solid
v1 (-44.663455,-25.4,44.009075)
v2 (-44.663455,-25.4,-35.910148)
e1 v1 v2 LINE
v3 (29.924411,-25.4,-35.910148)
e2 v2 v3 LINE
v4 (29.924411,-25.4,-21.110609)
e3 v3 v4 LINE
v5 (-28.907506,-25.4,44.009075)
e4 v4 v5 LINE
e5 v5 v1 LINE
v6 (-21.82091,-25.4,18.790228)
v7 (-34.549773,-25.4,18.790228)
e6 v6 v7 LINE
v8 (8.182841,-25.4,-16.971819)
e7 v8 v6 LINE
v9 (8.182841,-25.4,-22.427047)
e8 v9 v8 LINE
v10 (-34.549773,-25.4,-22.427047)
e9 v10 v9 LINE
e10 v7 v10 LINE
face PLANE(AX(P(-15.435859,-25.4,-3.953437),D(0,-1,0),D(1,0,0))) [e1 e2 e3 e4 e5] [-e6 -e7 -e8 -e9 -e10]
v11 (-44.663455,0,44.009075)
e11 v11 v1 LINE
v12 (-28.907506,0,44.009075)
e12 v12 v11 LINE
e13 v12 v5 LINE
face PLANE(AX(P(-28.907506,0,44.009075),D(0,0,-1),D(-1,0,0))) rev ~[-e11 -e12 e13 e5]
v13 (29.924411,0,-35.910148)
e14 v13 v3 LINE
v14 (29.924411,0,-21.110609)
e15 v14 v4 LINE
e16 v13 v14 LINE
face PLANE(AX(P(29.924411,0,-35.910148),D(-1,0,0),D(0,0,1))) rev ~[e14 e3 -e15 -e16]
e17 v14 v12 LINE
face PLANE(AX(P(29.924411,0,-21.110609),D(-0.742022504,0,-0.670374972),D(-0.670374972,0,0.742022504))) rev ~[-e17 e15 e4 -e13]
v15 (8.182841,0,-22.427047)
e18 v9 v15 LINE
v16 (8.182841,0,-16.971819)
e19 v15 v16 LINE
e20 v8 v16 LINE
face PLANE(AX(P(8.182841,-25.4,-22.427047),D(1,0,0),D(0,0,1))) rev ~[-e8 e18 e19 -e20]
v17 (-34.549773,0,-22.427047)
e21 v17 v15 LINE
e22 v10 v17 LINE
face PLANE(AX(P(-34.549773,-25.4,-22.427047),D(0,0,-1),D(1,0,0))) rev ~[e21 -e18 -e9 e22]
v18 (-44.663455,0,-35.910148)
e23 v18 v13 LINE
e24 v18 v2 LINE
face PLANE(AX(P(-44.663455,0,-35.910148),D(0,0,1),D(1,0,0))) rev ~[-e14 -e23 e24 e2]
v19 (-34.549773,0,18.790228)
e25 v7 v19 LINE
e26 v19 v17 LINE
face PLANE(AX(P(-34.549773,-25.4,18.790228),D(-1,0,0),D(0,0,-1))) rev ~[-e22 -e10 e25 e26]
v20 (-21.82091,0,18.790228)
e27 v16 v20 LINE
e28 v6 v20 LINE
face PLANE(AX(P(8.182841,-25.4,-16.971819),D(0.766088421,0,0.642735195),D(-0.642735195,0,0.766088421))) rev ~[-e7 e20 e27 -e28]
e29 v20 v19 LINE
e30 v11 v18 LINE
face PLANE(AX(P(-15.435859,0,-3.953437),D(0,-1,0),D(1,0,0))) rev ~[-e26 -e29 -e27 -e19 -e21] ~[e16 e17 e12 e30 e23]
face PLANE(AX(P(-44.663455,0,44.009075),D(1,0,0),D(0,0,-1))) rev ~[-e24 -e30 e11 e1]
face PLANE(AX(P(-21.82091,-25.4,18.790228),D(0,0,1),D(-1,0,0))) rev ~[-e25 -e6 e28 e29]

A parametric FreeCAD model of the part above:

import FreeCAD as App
import Part
import Sketcher

doc = App.newDocument("Part")
params = doc.addObject("Spreadsheet::Sheet", "Params")
for row, (alias, value) in enumerate([
    ("pad1_length", "1 in"),
], start=1):
    params.set(f"A{row}", alias)
    params.set(f"B{row}", "=" + value)
    params.setAlias(f"B{row}", alias)

body = doc.addObject("PartDesign::Body", "Body")

# Sketch on XZ plane
sketch1 = body.newObject("Sketcher::SketchObject", "Sketch")
sketch1.AttachmentSupport = (doc.getObject("XZ_Plane"), [""])
sketch1.MapMode = "FlatFace"
sketch1.addGeometry(Part.LineSegment(App.Vector(-28.907506, 44.009075, 0), App.Vector(-44.663455, 44.009075, 0)), False)
sketch1.addGeometry(Part.LineSegment(App.Vector(-44.663455, 44.009075, 0), App.Vector(-44.663455, -35.910148, 0)), False)
sketch1.addGeometry(Part.LineSegment(App.Vector(-44.663455, -35.910148, 0), App.Vector(29.924411, -35.910148, 0)), False)
sketch1.addGeometry(Part.LineSegment(App.Vector(29.924411, -35.910148, 0), App.Vector(29.924411, -21.110609, 0)), False)
sketch1.addGeometry(Part.LineSegment(App.Vector(29.924411, -21.110609, 0), App.Vector(-28.907506, 44.009075, 0)), False)
sketch1.addConstraint(Sketcher.Constraint("Coincident", 0, 2, 1, 1))
sketch1.addConstraint(Sketcher.Constraint("Coincident", 1, 2, 2, 1))
sketch1.addConstraint(Sketcher.Constraint("Coincident", 2, 2, 3, 1))
sketch1.addConstraint(Sketcher.Constraint("Coincident", 3, 2, 4, 1))
sketch1.addConstraint(Sketcher.Constraint("Coincident", 4, 2, 0, 1))
sketch1.addConstraint(Sketcher.Constraint("Horizontal", 0))
sketch1.addConstraint(Sketcher.Constraint("Vertical", 1))
sketch1.addConstraint(Sketcher.Constraint("Horizontal", 2))
sketch1.addConstraint(Sketcher.Constraint("Vertical", 3))
sketch1.addConstraint(Sketcher.Constraint("DistanceX", 0, 2, 0, 1, 15.755949))
sketch1.addConstraint(Sketcher.Constraint("DistanceY", 3, 1, 3, 2, 14.799539))
sketch1.addConstraint(Sketcher.Constraint("DistanceX", 2, 1, 2, 2, 74.587866))
sketch1.addConstraint(Sketcher.Constraint("DistanceY", 1, 2, 1, 1, 79.919223))
sketch1.addConstraint(Sketcher.Constraint("DistanceX", -1, 1, 2, 2, 29.924411))
sketch1.addConstraint(Sketcher.Constraint("DistanceY", 3, 2, -1, 1, 21.110609))
pad1 = body.newObject("PartDesign::Pad", "Pad")
pad1.Profile = sketch1
pad1.setExpression("Length", "Params.pad1_length")

# Sketch on XZ plane
sketch2 = body.newObject("Sketcher::SketchObject", "Sketch001")
sketch2.AttachmentSupport = (doc.getObject("XZ_Plane"), [""])
sketch2.MapMode = "FlatFace"
sketch2.AttachmentOffset = App.Placement(App.Vector(0, 0, 1 * 25.4), App.Rotation())
sketch2.addGeometry(Part.LineSegment(App.Vector(-21.82091, 18.790228, 0), App.Vector(-34.549773, 18.790228, 0)), False)
sketch2.addGeometry(Part.LineSegment(App.Vector(-34.549773, 18.790228, 0), App.Vector(-34.549773, -22.427047, 0)), False)
sketch2.addGeometry(Part.LineSegment(App.Vector(-34.549773, -22.427047, 0), App.Vector(8.182841, -22.427047, 0)), False)
sketch2.addGeometry(Part.LineSegment(App.Vector(8.182841, -22.427047, 0), App.Vector(8.182841, -16.971819, 0)), False)
sketch2.addGeometry(Part.LineSegment(App.Vector(8.182841, -16.971819, 0), App.Vector(-21.82091, 18.790228, 0)), False)
sketch2.addConstraint(Sketcher.Constraint("Coincident", 0, 2, 1, 1))
sketch2.addConstraint(Sketcher.Constraint("Coincident", 1, 2, 2, 1))
sketch2.addConstraint(Sketcher.Constraint("Coincident", 2, 2, 3, 1))
sketch2.addConstraint(Sketcher.Constraint("Coincident", 3, 2, 4, 1))
sketch2.addConstraint(Sketcher.Constraint("Coincident", 4, 2, 0, 1))
sketch2.addConstraint(Sketcher.Constraint("Horizontal", 0))
sketch2.addConstraint(Sketcher.Constraint("Vertical", 1))
sketch2.addConstraint(Sketcher.Constraint("Horizontal", 2))
sketch2.addConstraint(Sketcher.Constraint("Vertical", 3))
sketch2.addConstraint(Sketcher.Constraint("DistanceY", 3, 1, 3, 2, 5.455228))
sketch2.addConstraint(Sketcher.Constraint("DistanceX", 0, 2, 0, 1, 12.728863))
sketch2.addConstraint(Sketcher.Constraint("DistanceX", 2, 1, 2, 2, 42.732614))
sketch2.addConstraint(Sketcher.Constraint("DistanceY", 1, 2, 1, 1, 41.217275))
sketch2.addConstraint(Sketcher.Constraint("DistanceX", -1, 1, 2, 2, 8.182841))
sketch2.addConstraint(Sketcher.Constraint("DistanceY", 3, 2, -1, 1, 16.971819))
pocket1 = body.newObject("PartDesign::Pocket", "Pocket")
pocket1.Profile = sketch2
pocket1.Type = "ThroughAll"

doc.recompute()
